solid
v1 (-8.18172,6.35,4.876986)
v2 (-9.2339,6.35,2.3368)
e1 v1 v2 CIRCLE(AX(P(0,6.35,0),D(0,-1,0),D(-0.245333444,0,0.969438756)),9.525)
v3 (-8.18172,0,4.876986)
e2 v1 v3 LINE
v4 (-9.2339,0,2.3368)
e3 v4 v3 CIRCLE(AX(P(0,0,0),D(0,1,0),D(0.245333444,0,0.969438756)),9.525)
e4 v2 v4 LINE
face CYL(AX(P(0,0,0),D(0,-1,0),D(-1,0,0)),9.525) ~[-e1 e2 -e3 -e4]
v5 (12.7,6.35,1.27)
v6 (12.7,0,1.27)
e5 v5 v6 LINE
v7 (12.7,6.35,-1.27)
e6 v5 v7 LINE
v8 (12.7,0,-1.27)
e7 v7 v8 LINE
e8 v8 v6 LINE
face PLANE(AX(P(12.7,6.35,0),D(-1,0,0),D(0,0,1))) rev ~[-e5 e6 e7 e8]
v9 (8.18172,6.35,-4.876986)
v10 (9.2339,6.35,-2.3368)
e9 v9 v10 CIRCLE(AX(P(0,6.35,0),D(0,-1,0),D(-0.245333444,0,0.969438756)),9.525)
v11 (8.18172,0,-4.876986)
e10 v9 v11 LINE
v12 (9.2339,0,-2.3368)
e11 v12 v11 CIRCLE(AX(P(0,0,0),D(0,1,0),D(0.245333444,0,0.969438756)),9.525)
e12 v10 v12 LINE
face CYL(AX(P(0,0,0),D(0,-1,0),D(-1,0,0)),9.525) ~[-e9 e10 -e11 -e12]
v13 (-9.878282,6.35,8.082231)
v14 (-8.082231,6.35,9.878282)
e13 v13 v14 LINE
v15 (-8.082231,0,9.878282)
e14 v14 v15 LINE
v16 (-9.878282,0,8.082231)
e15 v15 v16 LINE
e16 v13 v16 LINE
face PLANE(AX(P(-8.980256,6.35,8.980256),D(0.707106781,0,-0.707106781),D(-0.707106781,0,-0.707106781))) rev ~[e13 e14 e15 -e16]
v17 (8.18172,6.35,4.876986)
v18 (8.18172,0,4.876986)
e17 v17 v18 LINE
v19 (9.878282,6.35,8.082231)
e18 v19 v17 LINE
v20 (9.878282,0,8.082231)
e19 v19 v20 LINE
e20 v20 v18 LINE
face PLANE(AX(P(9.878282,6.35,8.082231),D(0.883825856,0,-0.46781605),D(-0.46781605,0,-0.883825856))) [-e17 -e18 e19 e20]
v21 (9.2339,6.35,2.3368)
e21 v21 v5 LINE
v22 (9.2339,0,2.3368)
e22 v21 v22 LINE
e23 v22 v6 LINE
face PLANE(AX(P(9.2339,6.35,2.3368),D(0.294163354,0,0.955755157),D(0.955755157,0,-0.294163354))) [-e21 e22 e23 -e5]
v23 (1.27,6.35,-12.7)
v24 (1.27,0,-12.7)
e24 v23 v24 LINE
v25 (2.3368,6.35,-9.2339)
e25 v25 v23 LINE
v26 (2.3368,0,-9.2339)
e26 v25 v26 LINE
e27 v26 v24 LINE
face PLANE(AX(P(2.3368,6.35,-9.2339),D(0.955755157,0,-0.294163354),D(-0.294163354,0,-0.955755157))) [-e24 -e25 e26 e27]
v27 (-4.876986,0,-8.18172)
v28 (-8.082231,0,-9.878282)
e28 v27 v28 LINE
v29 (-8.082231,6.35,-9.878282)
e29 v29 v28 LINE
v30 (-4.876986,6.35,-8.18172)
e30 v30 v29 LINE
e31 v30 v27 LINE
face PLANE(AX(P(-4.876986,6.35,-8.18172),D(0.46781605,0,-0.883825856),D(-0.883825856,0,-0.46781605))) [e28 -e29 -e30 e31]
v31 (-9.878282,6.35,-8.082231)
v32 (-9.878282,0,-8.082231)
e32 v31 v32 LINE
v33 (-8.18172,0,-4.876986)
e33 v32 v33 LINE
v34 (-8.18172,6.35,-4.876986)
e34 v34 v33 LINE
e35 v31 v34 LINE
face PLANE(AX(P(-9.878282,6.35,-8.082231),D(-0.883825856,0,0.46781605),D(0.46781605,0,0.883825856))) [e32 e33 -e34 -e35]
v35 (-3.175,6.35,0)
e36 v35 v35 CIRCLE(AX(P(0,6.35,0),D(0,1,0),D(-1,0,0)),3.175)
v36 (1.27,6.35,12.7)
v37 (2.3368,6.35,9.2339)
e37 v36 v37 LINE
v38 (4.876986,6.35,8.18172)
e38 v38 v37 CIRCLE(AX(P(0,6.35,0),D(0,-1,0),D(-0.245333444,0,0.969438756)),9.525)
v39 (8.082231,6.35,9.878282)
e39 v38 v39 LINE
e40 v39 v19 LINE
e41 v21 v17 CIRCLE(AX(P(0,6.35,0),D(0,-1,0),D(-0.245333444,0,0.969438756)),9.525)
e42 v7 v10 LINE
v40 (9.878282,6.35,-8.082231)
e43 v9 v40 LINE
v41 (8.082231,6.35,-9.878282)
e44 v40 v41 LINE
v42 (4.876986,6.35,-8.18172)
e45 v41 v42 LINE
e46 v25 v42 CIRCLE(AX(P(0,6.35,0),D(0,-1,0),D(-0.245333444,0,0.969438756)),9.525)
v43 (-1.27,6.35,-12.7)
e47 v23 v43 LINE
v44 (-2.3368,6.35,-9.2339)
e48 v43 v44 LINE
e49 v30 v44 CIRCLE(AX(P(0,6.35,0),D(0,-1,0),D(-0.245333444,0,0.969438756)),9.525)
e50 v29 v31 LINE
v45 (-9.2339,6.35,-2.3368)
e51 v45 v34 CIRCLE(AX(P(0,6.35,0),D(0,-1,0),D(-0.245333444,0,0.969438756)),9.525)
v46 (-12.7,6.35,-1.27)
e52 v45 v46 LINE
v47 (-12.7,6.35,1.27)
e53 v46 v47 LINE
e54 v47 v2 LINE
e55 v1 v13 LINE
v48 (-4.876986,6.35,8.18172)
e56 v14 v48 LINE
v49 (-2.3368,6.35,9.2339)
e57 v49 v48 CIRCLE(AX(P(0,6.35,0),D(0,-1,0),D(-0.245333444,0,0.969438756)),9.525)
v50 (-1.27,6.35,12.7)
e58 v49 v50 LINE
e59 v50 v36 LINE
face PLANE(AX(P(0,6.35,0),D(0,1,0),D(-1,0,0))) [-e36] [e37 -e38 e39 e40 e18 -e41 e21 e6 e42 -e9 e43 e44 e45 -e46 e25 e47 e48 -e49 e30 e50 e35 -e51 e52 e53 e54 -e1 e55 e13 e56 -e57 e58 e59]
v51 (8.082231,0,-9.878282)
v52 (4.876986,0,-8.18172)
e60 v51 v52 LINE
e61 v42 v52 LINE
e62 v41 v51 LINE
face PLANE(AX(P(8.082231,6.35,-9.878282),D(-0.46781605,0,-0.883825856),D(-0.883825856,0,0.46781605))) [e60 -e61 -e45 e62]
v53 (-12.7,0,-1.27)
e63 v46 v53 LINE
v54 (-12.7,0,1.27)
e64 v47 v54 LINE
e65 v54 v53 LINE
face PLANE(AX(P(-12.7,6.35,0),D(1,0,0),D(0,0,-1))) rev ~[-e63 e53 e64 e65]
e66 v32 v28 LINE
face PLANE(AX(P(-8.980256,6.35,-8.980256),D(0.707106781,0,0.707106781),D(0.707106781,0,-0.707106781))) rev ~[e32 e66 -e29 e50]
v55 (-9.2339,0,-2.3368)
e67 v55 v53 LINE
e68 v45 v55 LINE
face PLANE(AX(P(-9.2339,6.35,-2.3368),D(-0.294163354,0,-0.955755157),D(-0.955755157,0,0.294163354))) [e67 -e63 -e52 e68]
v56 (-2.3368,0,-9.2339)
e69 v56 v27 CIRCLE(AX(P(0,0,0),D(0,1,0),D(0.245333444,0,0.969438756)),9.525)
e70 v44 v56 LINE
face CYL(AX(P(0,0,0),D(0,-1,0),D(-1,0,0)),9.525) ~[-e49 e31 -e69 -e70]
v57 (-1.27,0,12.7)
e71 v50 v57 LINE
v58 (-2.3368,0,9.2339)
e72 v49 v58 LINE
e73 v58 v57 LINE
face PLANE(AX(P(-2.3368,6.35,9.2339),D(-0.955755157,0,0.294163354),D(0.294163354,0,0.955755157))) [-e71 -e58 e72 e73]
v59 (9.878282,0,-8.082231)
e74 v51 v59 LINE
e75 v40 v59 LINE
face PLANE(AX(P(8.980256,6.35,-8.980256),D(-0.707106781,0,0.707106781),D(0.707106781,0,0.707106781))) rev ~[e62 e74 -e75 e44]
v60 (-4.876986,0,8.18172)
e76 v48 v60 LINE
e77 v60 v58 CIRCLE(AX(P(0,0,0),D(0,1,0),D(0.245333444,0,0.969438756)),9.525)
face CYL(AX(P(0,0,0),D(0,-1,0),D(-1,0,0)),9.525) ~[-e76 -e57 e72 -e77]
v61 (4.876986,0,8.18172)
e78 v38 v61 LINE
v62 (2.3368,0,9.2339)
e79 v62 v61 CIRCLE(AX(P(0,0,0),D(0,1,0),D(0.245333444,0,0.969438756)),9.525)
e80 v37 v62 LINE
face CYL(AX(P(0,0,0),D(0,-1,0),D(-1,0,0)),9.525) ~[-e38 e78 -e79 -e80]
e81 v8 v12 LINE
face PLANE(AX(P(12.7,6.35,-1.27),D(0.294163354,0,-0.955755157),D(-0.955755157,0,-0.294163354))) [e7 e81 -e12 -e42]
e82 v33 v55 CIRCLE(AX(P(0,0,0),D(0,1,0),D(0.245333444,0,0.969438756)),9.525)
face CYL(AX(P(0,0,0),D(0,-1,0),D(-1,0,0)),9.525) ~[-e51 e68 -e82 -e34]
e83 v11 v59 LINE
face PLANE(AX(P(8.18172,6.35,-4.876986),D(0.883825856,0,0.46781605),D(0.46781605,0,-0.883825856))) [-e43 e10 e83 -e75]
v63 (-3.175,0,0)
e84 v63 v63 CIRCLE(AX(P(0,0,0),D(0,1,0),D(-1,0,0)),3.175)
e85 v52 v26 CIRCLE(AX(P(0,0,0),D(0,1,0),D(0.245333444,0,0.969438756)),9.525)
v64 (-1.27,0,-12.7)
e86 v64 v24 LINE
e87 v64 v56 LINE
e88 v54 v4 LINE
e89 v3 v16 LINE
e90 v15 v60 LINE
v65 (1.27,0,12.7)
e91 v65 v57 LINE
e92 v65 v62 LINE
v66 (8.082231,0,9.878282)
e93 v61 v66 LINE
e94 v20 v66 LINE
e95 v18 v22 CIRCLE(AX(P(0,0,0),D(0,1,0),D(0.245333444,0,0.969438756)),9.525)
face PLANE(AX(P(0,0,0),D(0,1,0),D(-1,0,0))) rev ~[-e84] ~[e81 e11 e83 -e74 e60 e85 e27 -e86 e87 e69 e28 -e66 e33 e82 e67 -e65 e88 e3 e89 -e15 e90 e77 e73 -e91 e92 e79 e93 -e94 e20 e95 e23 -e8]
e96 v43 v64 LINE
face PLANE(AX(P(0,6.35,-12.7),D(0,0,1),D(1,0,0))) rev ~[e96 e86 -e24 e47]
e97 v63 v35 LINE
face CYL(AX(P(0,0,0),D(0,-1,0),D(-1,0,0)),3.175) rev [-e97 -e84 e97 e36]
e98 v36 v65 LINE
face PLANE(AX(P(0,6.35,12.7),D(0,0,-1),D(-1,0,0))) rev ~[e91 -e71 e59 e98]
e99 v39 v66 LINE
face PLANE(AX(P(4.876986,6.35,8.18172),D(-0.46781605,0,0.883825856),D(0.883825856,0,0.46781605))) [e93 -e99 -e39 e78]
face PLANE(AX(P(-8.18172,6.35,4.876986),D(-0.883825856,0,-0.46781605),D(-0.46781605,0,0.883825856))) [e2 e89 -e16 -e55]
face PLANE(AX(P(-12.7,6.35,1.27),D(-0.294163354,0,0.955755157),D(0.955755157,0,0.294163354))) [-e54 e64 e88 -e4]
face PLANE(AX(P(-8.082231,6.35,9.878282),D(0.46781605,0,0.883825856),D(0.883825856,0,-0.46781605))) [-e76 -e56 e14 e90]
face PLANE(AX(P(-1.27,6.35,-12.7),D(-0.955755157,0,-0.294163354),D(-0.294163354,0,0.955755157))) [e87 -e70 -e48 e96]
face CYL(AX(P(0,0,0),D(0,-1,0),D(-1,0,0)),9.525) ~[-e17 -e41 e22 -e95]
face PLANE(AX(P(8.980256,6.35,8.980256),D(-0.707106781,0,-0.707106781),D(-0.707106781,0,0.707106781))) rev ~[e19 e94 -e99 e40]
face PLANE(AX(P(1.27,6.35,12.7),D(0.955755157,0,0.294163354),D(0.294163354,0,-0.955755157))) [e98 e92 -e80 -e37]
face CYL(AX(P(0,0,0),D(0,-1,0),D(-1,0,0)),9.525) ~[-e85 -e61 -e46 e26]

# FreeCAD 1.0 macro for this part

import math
import FreeCAD as App
import Part
import Sketcher

V = App.Vector
Q = App.Units.Quantity

doc = App.newDocument("Part")
body = doc.addObject("PartDesign::Body", "Body")

# Sketch on XZ plane
sketch1 = doc.addObject("Sketcher::SketchObject", "Sketch")
body.addObject(sketch1)
sketch1.AttachmentSupport = (doc.XZ_Plane, [""])
sketch1.MapMode = "FlatFace"
sketch1.addGeometry(Part.Circle(V(0, 0, 0), V(0, 0, 1), 9.5), False)
sketch1.addGeometry(Part.Circle(V(0, 0, 0), V(0, 0, 1), 3.2), False)
sketch1.addConstraint(Sketcher.Constraint("Coincident", 0, 3, -1, 1))
sketch1.addConstraint(Sketcher.Constraint("Coincident", 1, 3, -1, 1))
sketch1.addConstraint(Sketcher.Constraint("Diameter", 0, Q("0.75 in")))
sketch1.addConstraint(Sketcher.Constraint("Diameter", 1, Q("0.25 in")))
pad1 = doc.addObject("PartDesign::Pad", "Pad")
body.addObject(pad1)
pad1.Profile = sketch1
pad1.Length = Q("0.25 in")
pad1.Reversed = True

# Sketch on XZ plane
sketch2 = doc.addObject("Sketcher::SketchObject", "Sketch001")
body.addObject(sketch2)
sketch2.AttachmentSupport = (doc.XZ_Plane, [""])
sketch2.MapMode = "FlatFace"
sketch2.AttachmentOffset = App.Placement(V(0, 0, -0.25 * 25.4), App.Rotation())
sketch2.addGeometry(Part.LineSegment(V(-2.3, 9.2, 0), V(-1.3, 12.7, 0)), False)
sketch2.addGeometry(Part.LineSegment(V(-1.3, 12.7, 0), V(1.3, 12.7, 0)), False)
sketch2.addGeometry(Part.LineSegment(V(1.3, 12.7, 0), V(2.3, 9.2, 0)), False)
sketch2.addGeometry(Part.ArcOfCircle(Part.Circle(V(0, 0, 0), V(0, 0, 1), 9.5), math.radians(76), math.radians(104)), False)
sketch2.addConstraint(Sketcher.Constraint("Coincident", 0, 2, 1, 1))
sketch2.addConstraint(Sketcher.Constraint("Coincident", 1, 2, 2, 1))
sketch2.addConstraint(Sketcher.Constraint("Coincident", 2, 2, 3, 1))
sketch2.addConstraint(Sketcher.Constraint("Coincident", 3, 2, 0, 1))
sketch2.addConstraint(Sketcher.Constraint("Horizontal", 1))
sketch2.addConstraint(Sketcher.Constraint("Coincident", 3, 3, -1, 1))
sketch2.addConstraint(Sketcher.Constraint("Horizontal", 2, 2, 3, 2))
sketch2.addConstraint(Sketcher.Constraint("Equal", 0, 2))
sketch2.addConstraint(Sketcher.Constraint("DistanceX", 0, 2, -1, 1, Q("0.05 in")))
sketch2.addConstraint(Sketcher.Constraint("Radius", 3, Q("0.375 in")))
sketch2.addConstraint(Sketcher.Constraint("DistanceX", 3, 2, 2, 2, Q("0.184 in")))
sketch2.addConstraint(Sketcher.Constraint("DistanceY", -1, 1, 0, 2, Q("0.5 in")))
pad2 = doc.addObject("PartDesign::Pad", "Pad001")
body.addObject(pad2)
pad2.Profile = sketch2
pad2.Length = Q("0.25 in")
doc.recompute()

polarpattern = doc.addObject("PartDesign::PolarPattern", "PolarPattern")
body.addObject(polarpattern)
polarpattern.Originals = [pad2]
polarpattern.Axis = (doc.Y_Axis, [""])
polarpattern.Angle = 360
polarpattern.Occurrences = 8
body.Tip = polarpattern

doc.recompute()
